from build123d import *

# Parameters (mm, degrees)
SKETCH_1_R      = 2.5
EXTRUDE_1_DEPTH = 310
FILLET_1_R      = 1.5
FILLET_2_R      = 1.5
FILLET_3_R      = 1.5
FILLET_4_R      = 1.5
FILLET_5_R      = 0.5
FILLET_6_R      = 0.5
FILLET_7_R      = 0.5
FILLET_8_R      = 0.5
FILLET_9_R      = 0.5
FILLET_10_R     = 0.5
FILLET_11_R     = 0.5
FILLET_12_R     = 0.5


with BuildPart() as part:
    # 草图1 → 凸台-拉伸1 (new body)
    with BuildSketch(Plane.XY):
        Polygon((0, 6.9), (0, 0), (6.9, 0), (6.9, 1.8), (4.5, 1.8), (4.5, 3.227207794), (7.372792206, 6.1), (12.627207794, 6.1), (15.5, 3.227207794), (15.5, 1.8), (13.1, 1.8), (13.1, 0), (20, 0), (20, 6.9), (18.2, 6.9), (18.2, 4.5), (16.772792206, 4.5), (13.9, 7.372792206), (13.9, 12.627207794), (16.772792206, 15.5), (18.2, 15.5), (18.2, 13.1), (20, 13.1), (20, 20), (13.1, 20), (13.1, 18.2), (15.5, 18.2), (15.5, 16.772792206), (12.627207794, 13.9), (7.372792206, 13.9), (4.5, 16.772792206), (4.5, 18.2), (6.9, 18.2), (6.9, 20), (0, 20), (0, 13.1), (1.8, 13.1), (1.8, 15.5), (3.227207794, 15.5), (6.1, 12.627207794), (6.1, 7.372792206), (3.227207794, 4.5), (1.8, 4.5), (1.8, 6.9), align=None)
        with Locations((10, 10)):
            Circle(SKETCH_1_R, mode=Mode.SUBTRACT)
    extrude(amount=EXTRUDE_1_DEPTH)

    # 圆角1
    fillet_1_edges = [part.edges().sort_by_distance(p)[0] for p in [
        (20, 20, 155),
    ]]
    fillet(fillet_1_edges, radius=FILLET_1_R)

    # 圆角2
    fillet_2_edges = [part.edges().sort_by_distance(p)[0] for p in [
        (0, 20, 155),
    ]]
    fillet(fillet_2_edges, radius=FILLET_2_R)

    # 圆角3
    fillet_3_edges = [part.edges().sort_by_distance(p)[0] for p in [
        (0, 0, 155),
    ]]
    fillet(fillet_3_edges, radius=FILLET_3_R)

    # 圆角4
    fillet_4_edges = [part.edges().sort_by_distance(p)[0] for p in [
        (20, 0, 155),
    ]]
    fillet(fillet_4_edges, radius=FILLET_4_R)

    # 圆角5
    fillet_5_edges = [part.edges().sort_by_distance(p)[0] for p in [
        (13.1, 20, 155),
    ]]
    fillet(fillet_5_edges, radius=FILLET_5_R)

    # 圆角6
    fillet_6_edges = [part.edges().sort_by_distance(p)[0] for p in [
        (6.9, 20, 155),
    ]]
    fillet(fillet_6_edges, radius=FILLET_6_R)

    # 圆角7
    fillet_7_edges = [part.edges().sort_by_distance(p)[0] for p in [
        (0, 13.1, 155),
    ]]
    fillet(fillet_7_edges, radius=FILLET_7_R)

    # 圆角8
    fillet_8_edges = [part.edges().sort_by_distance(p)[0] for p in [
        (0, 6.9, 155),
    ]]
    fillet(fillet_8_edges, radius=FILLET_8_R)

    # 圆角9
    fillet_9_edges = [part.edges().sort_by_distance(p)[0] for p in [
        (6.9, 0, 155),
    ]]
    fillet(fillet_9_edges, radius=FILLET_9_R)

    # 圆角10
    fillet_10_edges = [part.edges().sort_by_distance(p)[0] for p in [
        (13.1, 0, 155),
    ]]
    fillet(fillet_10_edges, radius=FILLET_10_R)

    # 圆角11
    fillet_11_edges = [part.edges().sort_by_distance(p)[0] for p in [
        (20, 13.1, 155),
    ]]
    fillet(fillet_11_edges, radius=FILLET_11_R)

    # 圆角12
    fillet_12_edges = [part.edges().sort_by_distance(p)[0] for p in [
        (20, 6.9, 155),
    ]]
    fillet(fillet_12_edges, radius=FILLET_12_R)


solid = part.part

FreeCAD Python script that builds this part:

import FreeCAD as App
import Part
import Sketcher
from FreeCAD import Vector


def edges_at(feature, points):
    """Names of the edges that pass closest to the given points."""
    edges = feature.Shape.Edges
    near = lambda p: min(range(len(edges)), key=lambda i: edges[i].distToShape(Part.Vertex(*p))[0])
    return sorted({f"Edge{near(p) + 1}" for p in points})


def add_polygon(sketch, points):
    """Adds a closed chain of lines whose ends are joined by coincident constraints."""
    first, n = sketch.GeometryCount, len(points)
    for a, b in zip(points, points[1:] + points[:1]):
        sketch.addGeometry(Part.LineSegment(App.Vector(*a, 0), App.Vector(*b, 0)), False)
    for i in range(n):
        sketch.addConstraint(Sketcher.Constraint("Coincident", first + i, 2, first + (i + 1) % n, 1))

doc = App.newDocument("Part")
body = doc.addObject("PartDesign::Body", "Body")

# Sketch on XY plane
sketch1 = body.newObject("Sketcher::SketchObject", "Sketch")
sketch1.AttachmentSupport = (doc.getObject("XY_Plane"), [""])
sketch1.MapMode = "FlatFace"
add_polygon(sketch1, [(0, 6.9), (0, 0), (6.9, 0), (6.9, 1.8), (4.5, 1.8), (4.5, 3.2), (7.4, 6.1), (12.6, 6.1), (15.5, 3.2), (15.5, 1.8), (13.1, 1.8), (13.1, 0), (20, 0), (20, 6.9), (18.2, 6.9), (18.2, 4.5), (16.8, 4.5), (13.9, 7.4), (13.9, 12.6), (16.8, 15.5), (18.2, 15.5), (18.2, 13.1), (20, 13.1), (20, 20), (13.1, 20), (13.1, 18.2), (15.5, 18.2), (15.5, 16.8), (12.6, 13.9), (7.4, 13.9), (4.5, 16.8), (4.5, 18.2), (6.9, 18.2), (6.9, 20), (0, 20), (0, 13.1), (1.8, 13.1), (1.8, 15.5), (3.2, 15.5), (6.1, 12.6), (6.1, 7.4), (3.2, 4.5), (1.8, 4.5), (1.8, 6.9)])  # lines 0-43
sketch1.addGeometry(Part.Circle(Vector(10, 10, 0), Vector(0, 0, 1), 2.5), False)  # 44
sketch1.addConstraint([
    Sketcher.Constraint("Vertical", 0),
    Sketcher.Constraint("Horizontal", 1),
    Sketcher.Constraint("Vertical", 2),
    Sketcher.Constraint("Horizontal", 3),
    Sketcher.Constraint("Vertical", 4),
    Sketcher.Constraint("Horizontal", 6),
    Sketcher.Constraint("Vertical", 8),
    Sketcher.Constraint("Horizontal", 9),
    Sketcher.Constraint("Vertical", 10),
    Sketcher.Constraint("Horizontal", 11),
    Sketcher.Constraint("Vertical", 12),
    Sketcher.Constraint("Horizontal", 13),
    Sketcher.Constraint("Vertical", 14),
    Sketcher.Constraint("Horizontal", 15),
    Sketcher.Constraint("Vertical", 17),
    Sketcher.Constraint("Horizontal", 19),
    Sketcher.Constraint("Vertical", 20),
    Sketcher.Constraint("Horizontal", 21),
    Sketcher.Constraint("Vertical", 22),
    Sketcher.Constraint("Horizontal", 23),
    Sketcher.Constraint("Vertical", 24),
    Sketcher.Constraint("Horizontal", 25),
    Sketcher.Constraint("Vertical", 26),
    Sketcher.Constraint("Horizontal", 28),
    Sketcher.Constraint("Vertical", 30),
    Sketcher.Constraint("Horizontal", 31),
    Sketcher.Constraint("Vertical", 32),
    Sketcher.Constraint("Horizontal", 33),
    Sketcher.Constraint("Vertical", 34),
    Sketcher.Constraint("Horizontal", 35),
    Sketcher.Constraint("Vertical", 36),
    Sketcher.Constraint("Horizontal", 37),
    Sketcher.Constraint("Vertical", 39),
    Sketcher.Constraint("Horizontal", 41),
    Sketcher.Constraint("Vertical", 42),
    Sketcher.Constraint("Horizontal", 43),
    Sketcher.Constraint("Coincident", 0, 2, -1, 1),
    Sketcher.Constraint("PointOnObject", 10, 2, -1),
    Sketcher.Constraint("PointOnObject", 33, 2, -2),
    Sketcher.Constraint("Perpendicular", 5, 7),
    Sketcher.Constraint("Parallel", 7, 16),
    Sketcher.Constraint("Perpendicular", 16, 18),
    Sketcher.Constraint("Parallel", 18, 27),
    Sketcher.Constraint("Perpendicular", 27, 29),
    Sketcher.Constraint("Parallel", 29, 38),
    Sketcher.Constraint("Perpendicular", 38, 40),
    Sketcher.Constraint("Horizontal", 4, 2, 7, 2),
    Sketcher.Constraint("Horizontal", 3, 2, 8, 2),
    Sketcher.Constraint("Horizontal", 26, 2, 29, 2),
    Sketcher.Constraint("Horizontal", 25, 2, 30, 2),
    Sketcher.Constraint("Horizontal", 23, 2, 32, 2),
    Sketcher.Constraint("Horizontal", 21, 2, 34, 2),
    Sketcher.Constraint("Horizontal", 19, 2, 36, 2),
    Sketcher.Constraint("Horizontal", 17, 2, 38, 2),
    Sketcher.Constraint("Horizontal", 16, 2, 39, 2),
    Sketcher.Constraint("Horizontal", 15, 2, 40, 2),
    Sketcher.Constraint("Horizontal", 13, 2, 42, 2),
    Sketcher.Constraint("Vertical", 15, 2, 18, 2),
    Sketcher.Constraint("Vertical", 14, 2, 19, 2),
    Sketcher.Constraint("Vertical", 12, 2, 21, 2),
    Sketcher.Constraint("Vertical", 10, 2, 23, 2),
    Sketcher.Constraint("Vertical", 8, 2, 25, 2),
    Sketcher.Constraint("Vertical", 6, 2, 27, 2),
    Sketcher.Constraint("Vertical", 5, 2, 28, 2),
    Sketcher.Constraint("Vertical", 4, 2, 29, 2),
    Sketcher.Constraint("Vertical", 2, 2, 31, 2),
    Sketcher.Constraint("Vertical", 36, 2, 41, 2),
    Sketcher.Constraint("Equal", 3, 9),
    Sketcher.Constraint("Equal", 1, 11),
    Sketcher.Constraint("Equal", 21, 35),
    Sketcher.Constraint("Equal", 19, 37),
    Sketcher.Constraint("Equal", 33, 0),
    Sketcher.Constraint("Equal", 43, 2),
    Sketcher.Constraint("Equal", 41, 4),
    Sketcher.Constraint("Equal", 31, 14),
    Sketcher.Constraint("Equal", 28, 17),
    Sketcher.Constraint("Equal", 14, 20),
    Sketcher.Constraint("Equal", 12, 22),
    Sketcher.Constraint("Equal", 10, 24),
    Sketcher.Constraint("Equal", 8, 26),
    Sketcher.Constraint("Equal", 7, 16),
    Sketcher.Constraint("Diameter", 44, 5.0),
    Sketcher.Constraint("DistanceX", 1, 1, 1, 2, 6.9),
    Sketcher.Constraint("DistanceX", 3, 2, 3, 1, 2.4),
    Sketcher.Constraint("DistanceX", 13, 2, 13, 1, 1.8),
    Sketcher.Constraint("DistanceX", -1, 1, 44, 3, 10.0),
    Sketcher.Constraint("DistanceY", -1, 1, 44, 3, 10.0),
    Sketcher.Constraint("DistanceX", -1, 1, 11, 2, 20.0),
    Sketcher.Constraint("DistanceY", -1, 1, 5, 2, 6.1),
    Sketcher.Constraint("Distance", 5, 4.062742),
])
pad1 = body.newObject("PartDesign::Pad", "Pad")
pad1.Profile = sketch1
pad1.Length = 310
doc.recompute()

fillet = body.newObject("PartDesign::Fillet", "Fillet")
fillet.Base = (pad1, edges_at(pad1, [(20, 20, 155)]))
fillet.Radius = 1.5
doc.recompute()

fillet2 = body.newObject("PartDesign::Fillet", "Fillet001")
fillet2.Base = (fillet, edges_at(fillet, [(0, 20, 155)]))
fillet2.Radius = 1.5
doc.recompute()

fillet3 = body.newObject("PartDesign::Fillet", "Fillet002")
fillet3.Base = (fillet2, edges_at(fillet2, [(0, 0, 155)]))
fillet3.Radius = 1.5
doc.recompute()

fillet4 = body.newObject("PartDesign::Fillet", "Fillet003")
fillet4.Base = (fillet3, edges_at(fillet3, [(20, 0, 155)]))
fillet4.Radius = 1.5
doc.recompute()

fillet5 = body.newObject("PartDesign::Fillet", "Fillet004")
fillet5.Base = (fillet4, edges_at(fillet4, [(13.1, 20, 155)]))
fillet5.Radius = 0.5
doc.recompute()

fillet6 = body.newObject("PartDesign::Fillet", "Fillet005")
fillet6.Base = (fillet5, edges_at(fillet5, [(6.9, 20, 155)]))
fillet6.Radius = 0.5
doc.recompute()

fillet7 = body.newObject("PartDesign::Fillet", "Fillet006")
fillet7.Base = (fillet6, edges_at(fillet6, [(0, 13.1, 155)]))
fillet7.Radius = 0.5
doc.recompute()

fillet8 = body.newObject("PartDesign::Fillet", "Fillet007")
fillet8.Base = (fillet7, edges_at(fillet7, [(0, 6.9, 155)]))
fillet8.Radius = 0.5
doc.recompute()

fillet9 = body.newObject("PartDesign::Fillet", "Fillet008")
fillet9.Base = (fillet8, edges_at(fillet8, [(6.9, 0, 155)]))
fillet9.Radius = 0.5
doc.recompute()

fillet10 = body.newObject("PartDesign::Fillet", "Fillet009")
fillet10.Base = (fillet9, edges_at(fillet9, [(13.1, 0, 155)]))
fillet10.Radius = 0.5
doc.recompute()

fillet11 = body.newObject("PartDesign::Fillet", "Fillet010")
fillet11.Base = (fillet10, edges_at(fillet10, [(20, 13.1, 155)]))
fillet11.Radius = 0.5
doc.recompute()

fillet12 = body.newObject("PartDesign::Fillet", "Fillet011")
fillet12.Base = (fillet11, edges_at(fillet11, [(20, 6.9, 155)]))
fillet12.Radius = 0.5

doc.recompute()
